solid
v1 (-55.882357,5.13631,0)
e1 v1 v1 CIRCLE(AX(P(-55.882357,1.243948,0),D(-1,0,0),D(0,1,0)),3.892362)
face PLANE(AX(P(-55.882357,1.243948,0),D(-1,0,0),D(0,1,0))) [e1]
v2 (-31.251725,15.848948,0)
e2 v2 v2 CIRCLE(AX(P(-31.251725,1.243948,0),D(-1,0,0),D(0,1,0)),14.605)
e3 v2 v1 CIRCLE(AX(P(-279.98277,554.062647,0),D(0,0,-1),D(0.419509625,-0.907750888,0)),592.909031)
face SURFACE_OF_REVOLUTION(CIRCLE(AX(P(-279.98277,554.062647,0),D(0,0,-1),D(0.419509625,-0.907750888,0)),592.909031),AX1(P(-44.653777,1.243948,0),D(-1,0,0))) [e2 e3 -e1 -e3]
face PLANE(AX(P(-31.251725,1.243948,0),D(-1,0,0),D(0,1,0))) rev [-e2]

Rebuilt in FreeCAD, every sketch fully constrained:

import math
import FreeCAD as App
import Part
import Sketcher
from FreeCAD import Vector
Q = App.Units.Quantity

doc = App.newDocument("Part")
body = doc.addObject("PartDesign::Body", "Body")

sketch1 = body.newObject("Sketcher::SketchObject", "Sketch")
sketch1.AttachmentSupport = (doc.getObject("XY_Plane"), [""])
sketch1.MapMode = "FlatFace"
sketch1.addGeometry(Part.LineSegment(Vector(-55.9, 5.1, 0), Vector(-55.9, 1.2, 0)), False)
sketch1.addGeometry(Part.LineSegment(Vector(-55.9, 1.2, 0), Vector(-31.3, 1.2, 0)), False)
sketch1.addGeometry(Part.LineSegment(Vector(-31.3, 1.2, 0), Vector(-31.3, 15.8, 0)), False)
sketch1.addGeometry(Part.ArcOfCircle(Part.Circle(Vector(-280, 554.1, 0), Vector(0, 0, 1), 592.9), math.radians(-67.79), math.radians(-65.2)), False)
sketch1.addGeometry(Part.LineSegment(Vector(-31.3, 1.2, 0), Vector(-280, 1.2, 0)), True)
sketch1.addConstraint(Sketcher.Constraint("Coincident", 0, 2, 1, 1))
sketch1.addConstraint(Sketcher.Constraint("Coincident", 1, 2, 2, 1))
sketch1.addConstraint(Sketcher.Constraint("Coincident", 2, 2, 3, 2))
sketch1.addConstraint(Sketcher.Constraint("Coincident", 3, 1, 0, 1))
sketch1.addConstraint(Sketcher.Constraint("Vertical", 0))
sketch1.addConstraint(Sketcher.Constraint("Horizontal", 1))
sketch1.addConstraint(Sketcher.Constraint("Vertical", 2))
sketch1.addConstraint(Sketcher.Constraint("Horizontal", 4))
sketch1.addConstraint(Sketcher.Constraint("Coincident", 4, 1, 1, 2))
sketch1.addConstraint(Sketcher.Constraint("Vertical", 3, 3, 4, 2))
sketch1.addConstraint(Sketcher.Constraint("DistanceY", 2, 1, 2, 2, Q("0.575 in")))
sketch1.addConstraint(Sketcher.Constraint("Radius", 3, 592.909031))
sketch1.addConstraint(Sketcher.Constraint("DistanceX", 1, 1, 1, 2, 24.630632))
sketch1.addConstraint(Sketcher.Constraint("DistanceY", 0, 2, 0, 1, 3.892362))
sketch1.addConstraint(Sketcher.Constraint("DistanceX", 3, 3, -1, 1, 279.98277))
sketch1.addConstraint(Sketcher.Constraint("DistanceY", -1, 1, 0, 2, 1.243948))
revolution = body.newObject("PartDesign::Revolution", "Revolution")
revolution.Profile = sketch1
revolution.ReferenceAxis = (sketch1, ["Axis0"])
revolution.Angle = 360

doc.recompute()
